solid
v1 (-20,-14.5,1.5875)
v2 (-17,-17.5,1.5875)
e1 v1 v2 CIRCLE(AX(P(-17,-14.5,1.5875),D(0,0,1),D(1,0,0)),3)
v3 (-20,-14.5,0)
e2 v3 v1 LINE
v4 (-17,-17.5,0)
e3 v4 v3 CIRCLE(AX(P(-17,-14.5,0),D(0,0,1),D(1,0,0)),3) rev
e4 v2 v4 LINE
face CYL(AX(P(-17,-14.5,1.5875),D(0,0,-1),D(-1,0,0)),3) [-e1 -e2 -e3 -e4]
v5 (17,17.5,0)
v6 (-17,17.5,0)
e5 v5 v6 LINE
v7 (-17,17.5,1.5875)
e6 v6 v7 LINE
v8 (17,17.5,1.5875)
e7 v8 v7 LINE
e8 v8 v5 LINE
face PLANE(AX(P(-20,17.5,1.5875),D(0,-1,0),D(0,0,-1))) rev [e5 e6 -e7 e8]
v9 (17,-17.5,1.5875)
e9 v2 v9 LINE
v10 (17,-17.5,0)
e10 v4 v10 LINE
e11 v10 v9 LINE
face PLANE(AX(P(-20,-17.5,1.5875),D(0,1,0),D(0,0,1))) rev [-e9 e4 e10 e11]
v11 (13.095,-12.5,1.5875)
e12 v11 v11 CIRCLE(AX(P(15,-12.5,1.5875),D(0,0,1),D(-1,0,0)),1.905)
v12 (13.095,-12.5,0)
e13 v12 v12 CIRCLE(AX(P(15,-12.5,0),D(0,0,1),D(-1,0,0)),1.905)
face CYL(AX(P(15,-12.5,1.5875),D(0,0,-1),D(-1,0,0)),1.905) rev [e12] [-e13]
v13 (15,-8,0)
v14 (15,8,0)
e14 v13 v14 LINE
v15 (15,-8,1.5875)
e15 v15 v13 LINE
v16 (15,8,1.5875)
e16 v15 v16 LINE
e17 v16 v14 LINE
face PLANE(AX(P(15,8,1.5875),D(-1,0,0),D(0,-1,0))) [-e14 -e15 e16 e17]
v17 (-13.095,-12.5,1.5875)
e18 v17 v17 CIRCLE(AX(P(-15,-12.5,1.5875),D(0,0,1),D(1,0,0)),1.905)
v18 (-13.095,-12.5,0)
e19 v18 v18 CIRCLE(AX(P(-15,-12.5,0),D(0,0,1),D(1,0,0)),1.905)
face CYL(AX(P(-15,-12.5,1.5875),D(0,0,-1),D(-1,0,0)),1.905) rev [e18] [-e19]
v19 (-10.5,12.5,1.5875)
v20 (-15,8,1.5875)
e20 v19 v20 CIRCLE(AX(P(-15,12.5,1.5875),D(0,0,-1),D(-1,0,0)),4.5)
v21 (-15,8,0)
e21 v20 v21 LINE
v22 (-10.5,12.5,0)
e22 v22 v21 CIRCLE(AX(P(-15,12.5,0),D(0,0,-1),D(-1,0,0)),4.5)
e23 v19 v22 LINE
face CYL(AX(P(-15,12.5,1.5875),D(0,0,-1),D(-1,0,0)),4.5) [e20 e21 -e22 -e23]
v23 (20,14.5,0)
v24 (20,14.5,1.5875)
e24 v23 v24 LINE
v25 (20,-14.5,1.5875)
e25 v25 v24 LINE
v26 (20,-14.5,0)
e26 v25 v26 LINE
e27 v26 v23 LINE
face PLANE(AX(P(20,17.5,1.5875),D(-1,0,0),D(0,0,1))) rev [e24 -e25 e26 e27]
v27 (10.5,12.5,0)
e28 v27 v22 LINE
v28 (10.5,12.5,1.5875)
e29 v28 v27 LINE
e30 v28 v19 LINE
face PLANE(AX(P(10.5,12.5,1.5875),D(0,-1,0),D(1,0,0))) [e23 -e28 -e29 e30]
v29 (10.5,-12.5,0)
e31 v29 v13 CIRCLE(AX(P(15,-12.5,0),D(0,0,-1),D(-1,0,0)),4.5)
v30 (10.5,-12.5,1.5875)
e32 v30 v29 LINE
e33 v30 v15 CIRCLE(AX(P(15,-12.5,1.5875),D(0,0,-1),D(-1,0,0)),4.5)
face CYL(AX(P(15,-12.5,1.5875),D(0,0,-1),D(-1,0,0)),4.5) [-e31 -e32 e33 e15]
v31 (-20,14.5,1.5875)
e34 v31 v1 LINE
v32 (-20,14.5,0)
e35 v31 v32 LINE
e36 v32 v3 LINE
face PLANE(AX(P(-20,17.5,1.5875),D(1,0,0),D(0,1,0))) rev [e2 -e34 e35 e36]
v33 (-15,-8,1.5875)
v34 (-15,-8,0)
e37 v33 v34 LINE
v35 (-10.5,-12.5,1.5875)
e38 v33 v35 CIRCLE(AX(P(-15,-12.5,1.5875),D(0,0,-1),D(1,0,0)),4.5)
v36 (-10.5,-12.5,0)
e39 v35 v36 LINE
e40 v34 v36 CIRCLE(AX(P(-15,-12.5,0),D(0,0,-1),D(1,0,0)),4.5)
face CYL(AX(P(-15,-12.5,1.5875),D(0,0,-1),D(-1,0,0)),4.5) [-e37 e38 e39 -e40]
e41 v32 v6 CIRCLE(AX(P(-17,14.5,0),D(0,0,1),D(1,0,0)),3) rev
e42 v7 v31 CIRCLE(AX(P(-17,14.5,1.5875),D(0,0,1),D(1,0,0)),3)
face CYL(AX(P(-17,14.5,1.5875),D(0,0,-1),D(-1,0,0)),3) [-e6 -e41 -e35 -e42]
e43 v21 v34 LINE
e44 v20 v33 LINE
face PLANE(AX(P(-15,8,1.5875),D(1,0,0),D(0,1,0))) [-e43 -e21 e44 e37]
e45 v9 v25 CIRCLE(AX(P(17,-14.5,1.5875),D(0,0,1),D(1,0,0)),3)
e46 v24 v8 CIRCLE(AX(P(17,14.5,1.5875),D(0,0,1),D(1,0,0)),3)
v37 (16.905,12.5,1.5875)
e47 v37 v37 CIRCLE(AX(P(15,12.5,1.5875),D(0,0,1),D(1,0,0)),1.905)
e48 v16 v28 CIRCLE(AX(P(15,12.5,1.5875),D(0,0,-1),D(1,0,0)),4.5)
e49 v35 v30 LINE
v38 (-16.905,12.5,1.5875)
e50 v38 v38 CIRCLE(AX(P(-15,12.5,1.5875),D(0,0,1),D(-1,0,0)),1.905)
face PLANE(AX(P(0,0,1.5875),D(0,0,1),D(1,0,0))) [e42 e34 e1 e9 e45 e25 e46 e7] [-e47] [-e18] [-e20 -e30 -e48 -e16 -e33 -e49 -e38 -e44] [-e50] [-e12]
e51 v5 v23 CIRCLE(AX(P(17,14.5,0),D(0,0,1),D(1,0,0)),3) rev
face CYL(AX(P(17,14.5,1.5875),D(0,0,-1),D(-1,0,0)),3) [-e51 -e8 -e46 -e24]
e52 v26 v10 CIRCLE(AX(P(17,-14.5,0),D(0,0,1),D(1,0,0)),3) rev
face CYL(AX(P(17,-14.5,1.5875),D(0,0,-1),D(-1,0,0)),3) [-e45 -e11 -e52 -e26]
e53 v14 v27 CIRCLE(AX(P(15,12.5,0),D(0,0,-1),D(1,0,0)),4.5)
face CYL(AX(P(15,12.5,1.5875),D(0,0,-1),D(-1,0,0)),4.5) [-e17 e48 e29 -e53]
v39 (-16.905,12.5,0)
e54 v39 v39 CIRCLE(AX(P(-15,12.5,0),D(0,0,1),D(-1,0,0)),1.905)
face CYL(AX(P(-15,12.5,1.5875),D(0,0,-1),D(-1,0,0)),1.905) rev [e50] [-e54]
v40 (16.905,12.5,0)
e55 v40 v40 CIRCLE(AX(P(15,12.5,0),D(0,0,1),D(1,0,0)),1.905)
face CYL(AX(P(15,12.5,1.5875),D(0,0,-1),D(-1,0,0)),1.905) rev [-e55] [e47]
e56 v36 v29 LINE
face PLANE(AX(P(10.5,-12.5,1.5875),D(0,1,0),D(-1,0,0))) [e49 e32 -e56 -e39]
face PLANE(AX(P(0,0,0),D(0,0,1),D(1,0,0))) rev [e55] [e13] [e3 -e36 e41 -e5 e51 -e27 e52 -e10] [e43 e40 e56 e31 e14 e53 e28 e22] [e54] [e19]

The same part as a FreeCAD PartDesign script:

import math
import FreeCAD as App
import Part
import Sketcher
from FreeCAD import Vector


def edges_at(feature, points):
    """Names of the edges that pass closest to the given points."""
    edges = feature.Shape.Edges
    near = lambda p: min(range(len(edges)), key=lambda i: edges[i].distToShape(Part.Vertex(*p))[0])
    return sorted({f"Edge{near(p) + 1}" for p in points})


def add_polygon(sketch, points):
    """Adds a closed chain of lines whose ends are joined by coincident constraints."""
    first, n = sketch.GeometryCount, len(points)
    for a, b in zip(points, points[1:] + points[:1]):
        sketch.addGeometry(Part.LineSegment(App.Vector(*a, 0), App.Vector(*b, 0)), False)
    for i in range(n):
        sketch.addConstraint(Sketcher.Constraint("Coincident", first + i, 2, first + (i + 1) % n, 1))

doc = App.newDocument("Part")
params = doc.addObject("Spreadsheet::Sheet", "Params")
for row, (alias, value) in enumerate([
    ("sketch1_radius", "4.5 mm"),
    ("sketch1_diameter", "3.81 mm"),
    ("sketch1_width", "40 mm"),
    ("sketch1_width2", "21 mm"),
    ("sketch1_height", "35 mm"),
    ("pad1_length", "1.5875 mm"),
    ("fillet_radius", "3 mm"),
], start=1):
    params.set(f"A{row}", alias)
    params.set(f"B{row}", "=" + value)
    params.setAlias(f"B{row}", alias)

body = doc.addObject("PartDesign::Body", "Body")

sketch1 = doc.addObject("Sketcher::SketchObject", "Sketch")
body.addObject(sketch1)
sketch1.AttachmentSupport = (doc.XY_Plane, [""])
sketch1.MapMode = "FlatFace"
add_polygon(sketch1, [(-20, 17.5), (-20, -17.5), (20, -17.5), (20, 17.5)])
sketch1.addGeometry(Part.Circle(Vector(-15, -12.5, 0), Vector(0, 0, 1), 1.9), False)
sketch1.addGeometry(Part.Circle(Vector(15, -12.5, 0), Vector(0, 0, 1), 1.9), False)
sketch1.addGeometry(Part.LineSegment(Vector(-15, -8, 0), Vector(-15, 8, 0)), False)
sketch1.addGeometry(Part.ArcOfCircle(Part.Circle(Vector(-15, 12.5, 0), Vector(0, 0, 1), 4.5), math.radians(-90), math.radians(0)), False)
sketch1.addGeometry(Part.LineSegment(Vector(-10.5, 12.5, 0), Vector(10.5, 12.5, 0)), False)
sketch1.addGeometry(Part.ArcOfCircle(Part.Circle(Vector(15, 12.5, 0), Vector(0, 0, 1), 4.5), math.radians(-180), math.radians(-90)), False)
sketch1.addGeometry(Part.LineSegment(Vector(15, 8, 0), Vector(15, -8, 0)), False)
sketch1.addGeometry(Part.ArcOfCircle(Part.Circle(Vector(15, -12.5, 0), Vector(0, 0, 1), 4.5), math.radians(90), math.radians(180)), False)
sketch1.addGeometry(Part.LineSegment(Vector(10.5, -12.5, 0), Vector(-10.5, -12.5, 0)), False)
sketch1.addGeometry(Part.ArcOfCircle(Part.Circle(Vector(-15, -12.5, 0), Vector(0, 0, 1), 4.5), math.radians(0), math.radians(90)), False)
sketch1.addGeometry(Part.Circle(Vector(-15, 12.5, 0), Vector(0, 0, 1), 1.9), False)
sketch1.addGeometry(Part.Circle(Vector(15, 12.5, 0), Vector(0, 0, 1), 1.9), False)
sketch1.addConstraint([
    Sketcher.Constraint("Coincident", 6, 2, 7, 1),
    Sketcher.Constraint("Coincident", 7, 2, 8, 1),
    Sketcher.Constraint("Coincident", 8, 2, 9, 1),
    Sketcher.Constraint("Coincident", 9, 2, 10, 1),
    Sketcher.Constraint("Coincident", 10, 2, 11, 1),
    Sketcher.Constraint("Coincident", 11, 2, 12, 1),
    Sketcher.Constraint("Coincident", 12, 2, 13, 1),
    Sketcher.Constraint("Coincident", 13, 2, 6, 1),
    Sketcher.Constraint("Vertical", 0),
    Sketcher.Constraint("Horizontal", 1),
    Sketcher.Constraint("Vertical", 2),
    Sketcher.Constraint("Horizontal", 3),
    Sketcher.Constraint("Vertical", 6),
    Sketcher.Constraint("Horizontal", 8),
    Sketcher.Constraint("Vertical", 10),
    Sketcher.Constraint("Horizontal", 12),
    Sketcher.Constraint("Coincident", 11, 3, 5, 3),
    Sketcher.Constraint("Coincident", 13, 3, 4, 3),
    Sketcher.Constraint("Coincident", 14, 3, 7, 3),
    Sketcher.Constraint("Coincident", 15, 3, 9, 3),
    Sketcher.Constraint("Equal", 4, 5),
    Sketcher.Constraint("Equal", 7, 9),
    Sketcher.Constraint("Equal", 9, 11),
    Sketcher.Constraint("Equal", 11, 13),
    Sketcher.Constraint("Equal", 5, 14),
    Sketcher.Constraint("Equal", 14, 15),
    Sketcher.Constraint("Symmetric", 5, 3, 7, 3, -1, 1),
    Sketcher.Constraint("Symmetric", 4, 3, 9, 3, -1, 1),
    Sketcher.Constraint("Symmetric", 0, 2, 2, 2, -1, 1),
    Sketcher.Constraint("Symmetric", 4, 3, 5, 3, -2),
    Sketcher.Constraint("Horizontal", 15, 3, 7, 2),
    Sketcher.Constraint("Horizontal", 13, 3, 11, 2),
    Sketcher.Constraint("Vertical", 14, 3, 6, 2),
    Sketcher.Constraint("Vertical", 15, 3, 9, 2),
    Sketcher.Constraint("Radius", 7, 4.5),
    Sketcher.Constraint("Diameter", 4, 3.81),
    Sketcher.Constraint("DistanceX", 1, 1, 1, 2, 40.0),
    Sketcher.Constraint("DistanceX", 8, 1, 8, 2, 21.0),
    Sketcher.Constraint("DistanceY", 0, 2, 0, 1, 35.0),
    Sketcher.Constraint("DistanceY", 6, 1, 6, 2, 16.0),
])
sketch1.setExpression("Constraints[38]", "Params.sketch1_radius")
sketch1.setExpression("Constraints[39]", "Params.sketch1_diameter")
sketch1.setExpression("Constraints[40]", "Params.sketch1_width")
sketch1.setExpression("Constraints[41]", "Params.sketch1_width2")
sketch1.setExpression("Constraints[42]", "Params.sketch1_height")
pad1 = doc.addObject("PartDesign::Pad", "Pad")
body.addObject(pad1)
pad1.Profile = sketch1
pad1.setExpression("Length", "Params.pad1_length")
doc.recompute()

fillet = doc.addObject("PartDesign::Fillet", "Fillet")
body.addObject(fillet)
fillet.Base = (pad1, edges_at(pad1, [
    (20, -17.5, 0.794),
    (-20, -17.5, 0.794),
    (-20, 17.5, 0.794),
    (20, 17.5, 0.794),
]))
fillet.setExpression("Radius", "Params.fillet_radius")

doc.recompute()
